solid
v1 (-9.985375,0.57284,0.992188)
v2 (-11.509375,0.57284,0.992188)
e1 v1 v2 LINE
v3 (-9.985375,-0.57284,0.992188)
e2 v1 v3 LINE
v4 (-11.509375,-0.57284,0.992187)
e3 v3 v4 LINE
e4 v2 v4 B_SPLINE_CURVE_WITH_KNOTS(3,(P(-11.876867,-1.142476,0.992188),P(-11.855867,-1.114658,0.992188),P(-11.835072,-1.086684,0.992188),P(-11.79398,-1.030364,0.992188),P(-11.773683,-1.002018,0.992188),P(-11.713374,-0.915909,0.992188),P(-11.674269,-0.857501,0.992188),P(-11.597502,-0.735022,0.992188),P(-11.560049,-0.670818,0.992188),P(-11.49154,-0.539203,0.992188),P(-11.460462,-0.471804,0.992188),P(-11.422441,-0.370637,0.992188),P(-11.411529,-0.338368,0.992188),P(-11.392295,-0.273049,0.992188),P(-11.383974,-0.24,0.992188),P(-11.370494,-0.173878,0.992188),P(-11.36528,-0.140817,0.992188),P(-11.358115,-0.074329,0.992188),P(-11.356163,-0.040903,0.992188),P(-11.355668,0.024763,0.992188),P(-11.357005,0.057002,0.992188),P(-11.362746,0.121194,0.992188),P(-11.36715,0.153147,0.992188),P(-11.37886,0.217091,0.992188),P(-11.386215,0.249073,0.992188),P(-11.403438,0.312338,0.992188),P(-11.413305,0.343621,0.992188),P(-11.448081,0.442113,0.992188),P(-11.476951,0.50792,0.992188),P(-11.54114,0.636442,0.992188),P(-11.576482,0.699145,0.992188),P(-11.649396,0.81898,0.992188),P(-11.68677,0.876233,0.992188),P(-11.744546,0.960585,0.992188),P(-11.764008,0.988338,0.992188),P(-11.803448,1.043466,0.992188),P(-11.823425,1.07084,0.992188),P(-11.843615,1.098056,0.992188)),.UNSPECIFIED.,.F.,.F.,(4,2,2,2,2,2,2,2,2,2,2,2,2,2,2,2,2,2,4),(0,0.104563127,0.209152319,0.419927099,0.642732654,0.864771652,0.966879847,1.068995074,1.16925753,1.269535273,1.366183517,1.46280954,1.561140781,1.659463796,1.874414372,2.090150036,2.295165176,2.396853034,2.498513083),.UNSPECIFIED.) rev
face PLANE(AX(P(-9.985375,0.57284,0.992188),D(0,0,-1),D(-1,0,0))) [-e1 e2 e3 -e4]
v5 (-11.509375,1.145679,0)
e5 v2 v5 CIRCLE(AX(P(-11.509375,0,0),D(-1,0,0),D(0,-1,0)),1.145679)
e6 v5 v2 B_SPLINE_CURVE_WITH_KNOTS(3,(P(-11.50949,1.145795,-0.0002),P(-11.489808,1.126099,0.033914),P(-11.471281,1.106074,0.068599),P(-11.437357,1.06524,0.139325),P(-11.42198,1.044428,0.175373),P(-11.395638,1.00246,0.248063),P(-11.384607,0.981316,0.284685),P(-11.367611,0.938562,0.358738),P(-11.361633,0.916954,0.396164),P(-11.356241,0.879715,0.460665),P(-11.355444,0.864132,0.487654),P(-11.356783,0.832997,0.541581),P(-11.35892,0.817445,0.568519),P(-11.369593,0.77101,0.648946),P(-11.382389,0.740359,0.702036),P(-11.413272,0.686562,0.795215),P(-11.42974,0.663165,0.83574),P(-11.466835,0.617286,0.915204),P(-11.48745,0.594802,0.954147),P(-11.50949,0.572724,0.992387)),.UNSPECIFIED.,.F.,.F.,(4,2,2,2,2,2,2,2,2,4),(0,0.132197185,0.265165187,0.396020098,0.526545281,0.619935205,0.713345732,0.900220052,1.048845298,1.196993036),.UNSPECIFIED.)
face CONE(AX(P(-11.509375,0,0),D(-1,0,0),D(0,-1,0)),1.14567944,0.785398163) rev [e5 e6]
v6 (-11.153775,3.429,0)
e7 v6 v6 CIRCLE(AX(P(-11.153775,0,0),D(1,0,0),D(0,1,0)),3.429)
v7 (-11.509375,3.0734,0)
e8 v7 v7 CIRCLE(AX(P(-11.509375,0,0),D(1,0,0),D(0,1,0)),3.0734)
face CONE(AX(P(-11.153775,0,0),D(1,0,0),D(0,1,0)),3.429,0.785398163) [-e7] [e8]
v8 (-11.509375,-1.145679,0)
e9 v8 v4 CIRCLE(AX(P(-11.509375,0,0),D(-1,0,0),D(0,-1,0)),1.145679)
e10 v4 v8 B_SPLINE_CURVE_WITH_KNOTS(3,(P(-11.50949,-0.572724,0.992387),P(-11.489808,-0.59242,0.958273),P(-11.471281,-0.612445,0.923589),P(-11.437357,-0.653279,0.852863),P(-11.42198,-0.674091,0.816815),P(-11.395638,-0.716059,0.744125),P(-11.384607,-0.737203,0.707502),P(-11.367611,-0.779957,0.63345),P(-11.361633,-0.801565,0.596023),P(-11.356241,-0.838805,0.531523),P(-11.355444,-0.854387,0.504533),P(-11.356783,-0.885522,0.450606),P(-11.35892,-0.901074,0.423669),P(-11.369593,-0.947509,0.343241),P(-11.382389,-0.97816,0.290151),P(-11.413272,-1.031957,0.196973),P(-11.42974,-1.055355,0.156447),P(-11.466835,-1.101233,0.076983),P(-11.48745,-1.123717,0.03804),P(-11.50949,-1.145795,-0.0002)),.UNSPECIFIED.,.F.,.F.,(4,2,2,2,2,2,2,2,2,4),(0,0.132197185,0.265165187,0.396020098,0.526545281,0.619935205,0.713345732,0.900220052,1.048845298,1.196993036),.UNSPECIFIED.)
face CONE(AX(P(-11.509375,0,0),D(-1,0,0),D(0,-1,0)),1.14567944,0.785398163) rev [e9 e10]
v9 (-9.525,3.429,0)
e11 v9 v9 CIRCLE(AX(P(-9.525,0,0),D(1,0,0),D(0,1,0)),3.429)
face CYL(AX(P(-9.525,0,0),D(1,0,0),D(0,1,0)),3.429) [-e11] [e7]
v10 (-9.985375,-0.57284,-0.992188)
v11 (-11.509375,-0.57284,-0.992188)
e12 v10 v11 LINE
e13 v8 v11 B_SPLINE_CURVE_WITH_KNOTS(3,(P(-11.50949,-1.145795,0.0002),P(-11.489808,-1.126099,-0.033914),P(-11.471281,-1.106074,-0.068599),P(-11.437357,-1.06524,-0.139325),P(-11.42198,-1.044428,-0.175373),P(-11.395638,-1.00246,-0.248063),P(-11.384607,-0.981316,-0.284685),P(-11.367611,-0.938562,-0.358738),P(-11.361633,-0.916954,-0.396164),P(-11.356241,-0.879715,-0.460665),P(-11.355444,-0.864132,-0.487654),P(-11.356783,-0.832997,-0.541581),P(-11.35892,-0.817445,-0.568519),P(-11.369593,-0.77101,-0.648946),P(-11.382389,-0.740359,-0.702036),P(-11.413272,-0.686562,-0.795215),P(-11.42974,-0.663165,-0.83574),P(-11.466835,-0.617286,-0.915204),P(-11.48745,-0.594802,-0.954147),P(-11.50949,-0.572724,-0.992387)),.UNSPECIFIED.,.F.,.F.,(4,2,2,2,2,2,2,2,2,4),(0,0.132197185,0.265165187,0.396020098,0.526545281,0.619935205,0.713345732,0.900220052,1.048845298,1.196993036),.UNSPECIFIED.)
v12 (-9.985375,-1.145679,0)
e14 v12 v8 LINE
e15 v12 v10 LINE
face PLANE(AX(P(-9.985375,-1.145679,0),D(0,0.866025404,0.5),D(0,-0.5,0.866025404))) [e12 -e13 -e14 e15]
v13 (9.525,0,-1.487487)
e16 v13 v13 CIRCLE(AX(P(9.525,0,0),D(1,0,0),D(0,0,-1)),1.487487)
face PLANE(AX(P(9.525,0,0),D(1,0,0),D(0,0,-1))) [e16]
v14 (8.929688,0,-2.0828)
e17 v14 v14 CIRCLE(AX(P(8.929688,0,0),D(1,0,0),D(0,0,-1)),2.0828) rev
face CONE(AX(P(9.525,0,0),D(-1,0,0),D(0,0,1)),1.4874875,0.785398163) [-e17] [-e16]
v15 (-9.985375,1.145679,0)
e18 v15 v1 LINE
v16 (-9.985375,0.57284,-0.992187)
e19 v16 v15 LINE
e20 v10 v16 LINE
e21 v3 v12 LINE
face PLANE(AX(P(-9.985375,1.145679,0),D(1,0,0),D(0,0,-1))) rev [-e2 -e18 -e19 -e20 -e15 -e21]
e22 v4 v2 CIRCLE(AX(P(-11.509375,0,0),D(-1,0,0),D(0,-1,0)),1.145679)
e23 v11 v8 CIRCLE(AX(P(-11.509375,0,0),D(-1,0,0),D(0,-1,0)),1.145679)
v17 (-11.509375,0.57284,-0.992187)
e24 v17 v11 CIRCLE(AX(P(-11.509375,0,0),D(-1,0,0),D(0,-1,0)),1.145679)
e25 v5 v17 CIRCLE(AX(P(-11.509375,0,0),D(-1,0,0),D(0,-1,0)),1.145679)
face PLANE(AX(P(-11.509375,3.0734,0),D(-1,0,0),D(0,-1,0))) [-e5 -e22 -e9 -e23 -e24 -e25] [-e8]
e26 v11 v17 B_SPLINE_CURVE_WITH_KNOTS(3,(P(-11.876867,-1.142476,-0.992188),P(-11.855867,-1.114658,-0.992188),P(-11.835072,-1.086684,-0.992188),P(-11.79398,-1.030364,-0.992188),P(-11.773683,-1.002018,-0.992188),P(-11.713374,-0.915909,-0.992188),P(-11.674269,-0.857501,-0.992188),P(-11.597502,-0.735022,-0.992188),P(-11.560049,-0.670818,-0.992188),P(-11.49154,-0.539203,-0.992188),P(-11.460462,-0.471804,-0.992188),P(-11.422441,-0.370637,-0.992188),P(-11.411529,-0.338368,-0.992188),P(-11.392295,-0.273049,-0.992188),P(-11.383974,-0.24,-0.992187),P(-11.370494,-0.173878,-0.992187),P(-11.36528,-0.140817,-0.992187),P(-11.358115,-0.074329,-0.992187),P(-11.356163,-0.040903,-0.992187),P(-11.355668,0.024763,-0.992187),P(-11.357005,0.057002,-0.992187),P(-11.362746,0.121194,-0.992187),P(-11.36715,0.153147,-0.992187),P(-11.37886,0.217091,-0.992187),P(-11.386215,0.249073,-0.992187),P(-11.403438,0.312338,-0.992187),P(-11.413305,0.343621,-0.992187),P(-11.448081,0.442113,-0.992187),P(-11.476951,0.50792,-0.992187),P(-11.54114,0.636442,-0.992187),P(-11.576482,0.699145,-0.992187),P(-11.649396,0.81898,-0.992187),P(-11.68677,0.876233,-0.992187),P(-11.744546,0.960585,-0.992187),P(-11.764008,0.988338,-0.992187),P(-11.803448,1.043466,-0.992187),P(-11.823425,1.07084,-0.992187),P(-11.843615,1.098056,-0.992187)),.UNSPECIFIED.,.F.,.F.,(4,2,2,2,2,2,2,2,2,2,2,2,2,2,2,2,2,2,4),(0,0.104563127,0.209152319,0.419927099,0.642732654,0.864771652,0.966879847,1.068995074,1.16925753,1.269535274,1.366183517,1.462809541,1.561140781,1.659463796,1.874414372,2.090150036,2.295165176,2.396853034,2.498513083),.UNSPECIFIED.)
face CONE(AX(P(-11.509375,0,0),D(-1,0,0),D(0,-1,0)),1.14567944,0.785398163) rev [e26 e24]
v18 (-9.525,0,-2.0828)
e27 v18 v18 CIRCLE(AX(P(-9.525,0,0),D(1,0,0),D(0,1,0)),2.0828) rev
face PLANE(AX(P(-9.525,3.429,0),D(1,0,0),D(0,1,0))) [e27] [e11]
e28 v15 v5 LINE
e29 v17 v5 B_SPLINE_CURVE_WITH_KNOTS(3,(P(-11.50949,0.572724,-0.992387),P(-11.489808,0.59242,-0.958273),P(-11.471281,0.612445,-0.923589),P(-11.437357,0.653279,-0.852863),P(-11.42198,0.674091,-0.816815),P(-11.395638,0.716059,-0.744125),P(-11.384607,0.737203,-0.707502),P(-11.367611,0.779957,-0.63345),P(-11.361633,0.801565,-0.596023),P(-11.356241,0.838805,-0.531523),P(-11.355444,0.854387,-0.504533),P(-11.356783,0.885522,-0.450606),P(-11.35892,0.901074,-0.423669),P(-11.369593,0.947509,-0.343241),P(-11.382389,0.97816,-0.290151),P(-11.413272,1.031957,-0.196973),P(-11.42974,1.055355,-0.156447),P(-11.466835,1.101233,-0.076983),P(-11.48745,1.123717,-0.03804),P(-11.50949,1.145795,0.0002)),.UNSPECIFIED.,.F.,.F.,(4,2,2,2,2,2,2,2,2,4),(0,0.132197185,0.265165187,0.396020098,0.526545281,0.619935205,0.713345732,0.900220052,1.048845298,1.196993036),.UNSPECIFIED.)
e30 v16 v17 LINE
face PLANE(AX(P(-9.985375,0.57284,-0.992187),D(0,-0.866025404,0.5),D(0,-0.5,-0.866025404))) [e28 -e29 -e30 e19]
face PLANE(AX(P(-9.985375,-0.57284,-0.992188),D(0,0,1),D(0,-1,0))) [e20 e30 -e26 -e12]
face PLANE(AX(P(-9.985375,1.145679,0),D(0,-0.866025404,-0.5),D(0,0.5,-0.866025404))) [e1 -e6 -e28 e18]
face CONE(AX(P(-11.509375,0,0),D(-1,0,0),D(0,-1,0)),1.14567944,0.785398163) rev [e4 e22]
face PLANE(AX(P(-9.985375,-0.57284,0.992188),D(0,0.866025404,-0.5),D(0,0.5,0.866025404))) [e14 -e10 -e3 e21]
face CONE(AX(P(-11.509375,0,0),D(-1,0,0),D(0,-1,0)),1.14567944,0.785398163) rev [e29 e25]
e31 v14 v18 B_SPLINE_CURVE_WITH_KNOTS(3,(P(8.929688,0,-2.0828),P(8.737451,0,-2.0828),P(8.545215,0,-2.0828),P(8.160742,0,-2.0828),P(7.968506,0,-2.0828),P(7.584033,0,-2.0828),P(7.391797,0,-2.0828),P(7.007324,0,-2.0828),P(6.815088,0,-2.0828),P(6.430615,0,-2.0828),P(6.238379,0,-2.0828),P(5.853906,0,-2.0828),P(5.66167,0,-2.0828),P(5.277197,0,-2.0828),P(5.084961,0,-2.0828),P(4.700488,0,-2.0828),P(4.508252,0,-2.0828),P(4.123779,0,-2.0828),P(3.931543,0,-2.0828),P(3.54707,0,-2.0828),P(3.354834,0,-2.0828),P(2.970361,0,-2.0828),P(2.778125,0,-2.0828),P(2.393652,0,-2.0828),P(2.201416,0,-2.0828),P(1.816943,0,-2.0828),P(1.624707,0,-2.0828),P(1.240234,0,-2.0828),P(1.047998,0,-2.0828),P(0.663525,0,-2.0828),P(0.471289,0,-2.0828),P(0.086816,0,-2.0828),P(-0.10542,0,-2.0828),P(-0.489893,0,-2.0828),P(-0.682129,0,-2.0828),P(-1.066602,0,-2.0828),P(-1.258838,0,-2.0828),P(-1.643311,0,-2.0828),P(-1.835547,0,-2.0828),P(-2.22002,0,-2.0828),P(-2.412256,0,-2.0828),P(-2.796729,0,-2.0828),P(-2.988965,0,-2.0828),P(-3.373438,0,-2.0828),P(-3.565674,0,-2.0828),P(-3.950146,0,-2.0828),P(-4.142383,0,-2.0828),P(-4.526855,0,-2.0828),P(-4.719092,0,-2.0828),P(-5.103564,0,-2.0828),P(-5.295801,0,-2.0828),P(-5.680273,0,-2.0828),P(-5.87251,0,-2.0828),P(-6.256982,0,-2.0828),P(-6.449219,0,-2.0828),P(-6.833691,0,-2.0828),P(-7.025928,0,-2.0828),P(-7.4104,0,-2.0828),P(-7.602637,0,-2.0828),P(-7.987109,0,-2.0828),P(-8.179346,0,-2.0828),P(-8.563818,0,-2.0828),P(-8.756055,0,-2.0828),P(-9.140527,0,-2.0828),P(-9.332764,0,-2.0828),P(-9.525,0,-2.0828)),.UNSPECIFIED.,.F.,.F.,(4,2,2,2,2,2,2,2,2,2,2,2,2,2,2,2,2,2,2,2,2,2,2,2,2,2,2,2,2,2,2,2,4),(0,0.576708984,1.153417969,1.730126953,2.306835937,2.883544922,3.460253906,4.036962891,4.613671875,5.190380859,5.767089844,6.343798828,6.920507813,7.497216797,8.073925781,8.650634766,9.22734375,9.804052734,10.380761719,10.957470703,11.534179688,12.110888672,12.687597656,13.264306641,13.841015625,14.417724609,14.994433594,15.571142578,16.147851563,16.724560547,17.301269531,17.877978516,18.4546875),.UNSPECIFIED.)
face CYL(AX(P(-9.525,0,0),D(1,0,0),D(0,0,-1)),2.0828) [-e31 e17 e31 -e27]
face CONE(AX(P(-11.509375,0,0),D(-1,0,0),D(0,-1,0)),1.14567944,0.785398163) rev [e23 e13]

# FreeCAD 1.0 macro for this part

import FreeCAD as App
import Part
import Sketcher

V = App.Vector
Q = App.Units.Quantity


def edges_at(feature, points):
    """Names of the edges that pass closest to the given points."""
    edges = feature.Shape.Edges
    near = lambda p: min(range(len(edges)), key=lambda i: edges[i].distToShape(Part.Vertex(*p))[0])
    return sorted({f"Edge{near(p) + 1}" for p in points})

doc = App.newDocument("Part")
body = doc.addObject("PartDesign::Body", "Body")

# Sketch on YZ plane
sketch1 = body.newObject("Sketcher::SketchObject", "Sketch")
sketch1.AttachmentSupport = (doc.getObject("YZ_Plane"), [""])
sketch1.MapMode = "FlatFace"
sketch1.AttachmentOffset = App.Placement(V(0, 0, 0.375 * 25.4), App.Rotation())
sketch1.addGeometry(Part.Circle(V(0, 0, 0), V(0, 0, 1), 2.1), False)
sketch1.addConstraint(Sketcher.Constraint("Coincident", 0, 3, -1, 1))
sketch1.addConstraint(Sketcher.Constraint("Diameter", 0, Q("0.164 in")))
pad1 = body.newObject("PartDesign::Pad", "Pad")
pad1.Profile = sketch1
pad1.Length = Q("0.75 in")
pad1.Reversed = True
doc.recompute()

chamfer = body.newObject("PartDesign::Chamfer", "Chamfer")
chamfer.Base = (pad1, edges_at(pad1, [(9.525, 0, 2.083)]))
chamfer.Size = 0.595313

# Sketch on XY plane
sketch2 = body.newObject("Sketcher::SketchObject", "Sketch001")
sketch2.AttachmentSupport = (doc.getObject("XY_Plane"), [""])
sketch2.MapMode = "FlatFace"
sketch2.addGeometry(Part.LineSegment(V(-11.2, 3.4, 0), V(-11.5, 3.1, 0)), False)
sketch2.addGeometry(Part.LineSegment(V(-11.5, 3.1, 0), V(-11.5, 0, 0)), False)
sketch2.addGeometry(Part.LineSegment(V(-11.5, 0, 0), V(-9.5, 0, 0)), False)
sketch2.addGeometry(Part.LineSegment(V(-9.5, 0, 0), V(-9.5, 3.4, 0)), False)
sketch2.addGeometry(Part.LineSegment(V(-9.5, 3.4, 0), V(-11.2, 3.4, 0)), False)
sketch2.addConstraint(Sketcher.Constraint("Coincident", 0, 2, 1, 1))
sketch2.addConstraint(Sketcher.Constraint("Coincident", 1, 2, 2, 1))
sketch2.addConstraint(Sketcher.Constraint("Coincident", 2, 2, 3, 1))
sketch2.addConstraint(Sketcher.Constraint("Coincident", 3, 2, 4, 1))
sketch2.addConstraint(Sketcher.Constraint("Coincident", 4, 2, 0, 1))
sketch2.addConstraint(Sketcher.Constraint("Vertical", 1))
sketch2.addConstraint(Sketcher.Constraint("Horizontal", 2))
sketch2.addConstraint(Sketcher.Constraint("Vertical", 3))
sketch2.addConstraint(Sketcher.Constraint("Horizontal", 4))
sketch2.addConstraint(Sketcher.Constraint("PointOnObject", 1, 2, -1))
sketch2.addConstraint(Sketcher.Constraint("Angle", 0, Q("-135 deg")))
sketch2.addConstraint(Sketcher.Constraint("DistanceX", 2, 1, 2, 2, Q("0.078125 in")))
sketch2.addConstraint(Sketcher.Constraint("DistanceY", 1, 2, 1, 1, Q("0.121 in")))
sketch2.addConstraint(Sketcher.Constraint("DistanceY", 3, 1, 3, 2, Q("0.135 in")))
sketch2.addConstraint(Sketcher.Constraint("DistanceX", 0, 2, -1, 1, Q("0.453125 in")))
revolution = body.newObject("PartDesign::Revolution", "Revolution")
revolution.Profile = sketch2
revolution.ReferenceAxis = (sketch2, ["H_Axis"])
revolution.Angle = 360

# Sketch on YZ plane
sketch3 = body.newObject("Sketcher::SketchObject", "Sketch002")
sketch3.AttachmentSupport = (doc.getObject("YZ_Plane"), [""])
sketch3.MapMode = "FlatFace"
sketch3.AttachmentOffset = App.Placement(V(0, 0, -0.453125 * 25.4), App.Rotation())
sketch3.addGeometry(Part.LineSegment(V(1.1, 0, 0), V(0.6, 1, 0)), False)
sketch3.addGeometry(Part.LineSegment(V(0.6, 1, 0), V(-0.6, 1, 0)), False)
sketch3.addGeometry(Part.LineSegment(V(-0.6, 1, 0), V(-1.1, 0, 0)), False)
sketch3.addGeometry(Part.LineSegment(V(-1.1, 0, 0), V(-0.6, -1, 0)), False)
sketch3.addGeometry(Part.LineSegment(V(-0.6, -1, 0), V(0.6, -1, 0)), False)
sketch3.addGeometry(Part.LineSegment(V(0.6, -1, 0), V(1.1, 0, 0)), False)
sketch3.addConstraint(Sketcher.Constraint("Coincident", 0, 2, 1, 1))
sketch3.addConstraint(Sketcher.Constraint("Coincident", 1, 2, 2, 1))
sketch3.addConstraint(Sketcher.Constraint("Coincident", 2, 2, 3, 1))
sketch3.addConstraint(Sketcher.Constraint("Coincident", 3, 2, 4, 1))
sketch3.addConstraint(Sketcher.Constraint("Coincident", 4, 2, 5, 1))
sketch3.addConstraint(Sketcher.Constraint("Coincident", 5, 2, 0, 1))
sketch3.addConstraint(Sketcher.Constraint("Horizontal", 1))
sketch3.addConstraint(Sketcher.Constraint("Horizontal", 4))
sketch3.addConstraint(Sketcher.Constraint("Symmetric", 0, 2, 3, 2, -1, 1))
sketch3.addConstraint(Sketcher.Constraint("Symmetric", 2, 2, 5, 2, -1, 1))
sketch3.addConstraint(Sketcher.Constraint("PointOnObject", 2, 2, -1))
sketch3.addConstraint(Sketcher.Constraint("Parallel", 2, 5))
sketch3.addConstraint(Sketcher.Constraint("Vertical", 1, 2, 3, 2))
sketch3.addConstraint(Sketcher.Constraint("Angle", 0, Q("120 deg")))
sketch3.addConstraint(Sketcher.Constraint("DistanceY", 3, 2, 1, 2, Q("0.078125 in")))
sketch3.addConstraint(Sketcher.Constraint("DistanceX", 1, 2, 1, 1, Q("1.145679 mm")))
pocket1 = body.newObject("PartDesign::Pocket", "Pocket")
pocket1.Profile = sketch3
pocket1.Length = Q("0.06 in")
pocket1.Reversed = True

# Sketch on XZ plane
sketch4 = body.newObject("Sketcher::SketchObject", "Sketch003")
sketch4.AttachmentSupport = (doc.getObject("XZ_Plane"), [""])
sketch4.MapMode = "FlatFace"
sketch4.addGeometry(Part.LineSegment(V(-11.5, 0, 0), V(-11.5, 1.1, 0)), False)
sketch4.addGeometry(Part.LineSegment(V(-11.5, 1.1, 0), V(-10.4, 0, 0)), False)
sketch4.addGeometry(Part.LineSegment(V(-10.4, 0, 0), V(-11.5, 0, 0)), False)
sketch4.addConstraint(Sketcher.Constraint("Coincident", 0, 2, 1, 1))
sketch4.addConstraint(Sketcher.Constraint("Coincident", 1, 2, 2, 1))
sketch4.addConstraint(Sketcher.Constraint("Coincident", 2, 2, 0, 1))
sketch4.addConstraint(Sketcher.Constraint("Vertical", 0))
sketch4.addConstraint(Sketcher.Constraint("Horizontal", 2))
sketch4.addConstraint(Sketcher.Constraint("PointOnObject", 1, 2, -1))
sketch4.addConstraint(Sketcher.Constraint("Equal", 2, 0))
sketch4.addConstraint(Sketcher.Constraint("DistanceX", 0, 2, -1, 1, Q("0.453125 in")))
sketch4.addConstraint(Sketcher.Constraint("DistanceX", 2, 2, 2, 1, Q("1.145679 mm")))
groove = body.newObject("PartDesign::Groove", "Groove")
groove.Profile = sketch4
groove.ReferenceAxis = (sketch4, ["H_Axis"])
groove.Angle = 360

doc.recompute()
